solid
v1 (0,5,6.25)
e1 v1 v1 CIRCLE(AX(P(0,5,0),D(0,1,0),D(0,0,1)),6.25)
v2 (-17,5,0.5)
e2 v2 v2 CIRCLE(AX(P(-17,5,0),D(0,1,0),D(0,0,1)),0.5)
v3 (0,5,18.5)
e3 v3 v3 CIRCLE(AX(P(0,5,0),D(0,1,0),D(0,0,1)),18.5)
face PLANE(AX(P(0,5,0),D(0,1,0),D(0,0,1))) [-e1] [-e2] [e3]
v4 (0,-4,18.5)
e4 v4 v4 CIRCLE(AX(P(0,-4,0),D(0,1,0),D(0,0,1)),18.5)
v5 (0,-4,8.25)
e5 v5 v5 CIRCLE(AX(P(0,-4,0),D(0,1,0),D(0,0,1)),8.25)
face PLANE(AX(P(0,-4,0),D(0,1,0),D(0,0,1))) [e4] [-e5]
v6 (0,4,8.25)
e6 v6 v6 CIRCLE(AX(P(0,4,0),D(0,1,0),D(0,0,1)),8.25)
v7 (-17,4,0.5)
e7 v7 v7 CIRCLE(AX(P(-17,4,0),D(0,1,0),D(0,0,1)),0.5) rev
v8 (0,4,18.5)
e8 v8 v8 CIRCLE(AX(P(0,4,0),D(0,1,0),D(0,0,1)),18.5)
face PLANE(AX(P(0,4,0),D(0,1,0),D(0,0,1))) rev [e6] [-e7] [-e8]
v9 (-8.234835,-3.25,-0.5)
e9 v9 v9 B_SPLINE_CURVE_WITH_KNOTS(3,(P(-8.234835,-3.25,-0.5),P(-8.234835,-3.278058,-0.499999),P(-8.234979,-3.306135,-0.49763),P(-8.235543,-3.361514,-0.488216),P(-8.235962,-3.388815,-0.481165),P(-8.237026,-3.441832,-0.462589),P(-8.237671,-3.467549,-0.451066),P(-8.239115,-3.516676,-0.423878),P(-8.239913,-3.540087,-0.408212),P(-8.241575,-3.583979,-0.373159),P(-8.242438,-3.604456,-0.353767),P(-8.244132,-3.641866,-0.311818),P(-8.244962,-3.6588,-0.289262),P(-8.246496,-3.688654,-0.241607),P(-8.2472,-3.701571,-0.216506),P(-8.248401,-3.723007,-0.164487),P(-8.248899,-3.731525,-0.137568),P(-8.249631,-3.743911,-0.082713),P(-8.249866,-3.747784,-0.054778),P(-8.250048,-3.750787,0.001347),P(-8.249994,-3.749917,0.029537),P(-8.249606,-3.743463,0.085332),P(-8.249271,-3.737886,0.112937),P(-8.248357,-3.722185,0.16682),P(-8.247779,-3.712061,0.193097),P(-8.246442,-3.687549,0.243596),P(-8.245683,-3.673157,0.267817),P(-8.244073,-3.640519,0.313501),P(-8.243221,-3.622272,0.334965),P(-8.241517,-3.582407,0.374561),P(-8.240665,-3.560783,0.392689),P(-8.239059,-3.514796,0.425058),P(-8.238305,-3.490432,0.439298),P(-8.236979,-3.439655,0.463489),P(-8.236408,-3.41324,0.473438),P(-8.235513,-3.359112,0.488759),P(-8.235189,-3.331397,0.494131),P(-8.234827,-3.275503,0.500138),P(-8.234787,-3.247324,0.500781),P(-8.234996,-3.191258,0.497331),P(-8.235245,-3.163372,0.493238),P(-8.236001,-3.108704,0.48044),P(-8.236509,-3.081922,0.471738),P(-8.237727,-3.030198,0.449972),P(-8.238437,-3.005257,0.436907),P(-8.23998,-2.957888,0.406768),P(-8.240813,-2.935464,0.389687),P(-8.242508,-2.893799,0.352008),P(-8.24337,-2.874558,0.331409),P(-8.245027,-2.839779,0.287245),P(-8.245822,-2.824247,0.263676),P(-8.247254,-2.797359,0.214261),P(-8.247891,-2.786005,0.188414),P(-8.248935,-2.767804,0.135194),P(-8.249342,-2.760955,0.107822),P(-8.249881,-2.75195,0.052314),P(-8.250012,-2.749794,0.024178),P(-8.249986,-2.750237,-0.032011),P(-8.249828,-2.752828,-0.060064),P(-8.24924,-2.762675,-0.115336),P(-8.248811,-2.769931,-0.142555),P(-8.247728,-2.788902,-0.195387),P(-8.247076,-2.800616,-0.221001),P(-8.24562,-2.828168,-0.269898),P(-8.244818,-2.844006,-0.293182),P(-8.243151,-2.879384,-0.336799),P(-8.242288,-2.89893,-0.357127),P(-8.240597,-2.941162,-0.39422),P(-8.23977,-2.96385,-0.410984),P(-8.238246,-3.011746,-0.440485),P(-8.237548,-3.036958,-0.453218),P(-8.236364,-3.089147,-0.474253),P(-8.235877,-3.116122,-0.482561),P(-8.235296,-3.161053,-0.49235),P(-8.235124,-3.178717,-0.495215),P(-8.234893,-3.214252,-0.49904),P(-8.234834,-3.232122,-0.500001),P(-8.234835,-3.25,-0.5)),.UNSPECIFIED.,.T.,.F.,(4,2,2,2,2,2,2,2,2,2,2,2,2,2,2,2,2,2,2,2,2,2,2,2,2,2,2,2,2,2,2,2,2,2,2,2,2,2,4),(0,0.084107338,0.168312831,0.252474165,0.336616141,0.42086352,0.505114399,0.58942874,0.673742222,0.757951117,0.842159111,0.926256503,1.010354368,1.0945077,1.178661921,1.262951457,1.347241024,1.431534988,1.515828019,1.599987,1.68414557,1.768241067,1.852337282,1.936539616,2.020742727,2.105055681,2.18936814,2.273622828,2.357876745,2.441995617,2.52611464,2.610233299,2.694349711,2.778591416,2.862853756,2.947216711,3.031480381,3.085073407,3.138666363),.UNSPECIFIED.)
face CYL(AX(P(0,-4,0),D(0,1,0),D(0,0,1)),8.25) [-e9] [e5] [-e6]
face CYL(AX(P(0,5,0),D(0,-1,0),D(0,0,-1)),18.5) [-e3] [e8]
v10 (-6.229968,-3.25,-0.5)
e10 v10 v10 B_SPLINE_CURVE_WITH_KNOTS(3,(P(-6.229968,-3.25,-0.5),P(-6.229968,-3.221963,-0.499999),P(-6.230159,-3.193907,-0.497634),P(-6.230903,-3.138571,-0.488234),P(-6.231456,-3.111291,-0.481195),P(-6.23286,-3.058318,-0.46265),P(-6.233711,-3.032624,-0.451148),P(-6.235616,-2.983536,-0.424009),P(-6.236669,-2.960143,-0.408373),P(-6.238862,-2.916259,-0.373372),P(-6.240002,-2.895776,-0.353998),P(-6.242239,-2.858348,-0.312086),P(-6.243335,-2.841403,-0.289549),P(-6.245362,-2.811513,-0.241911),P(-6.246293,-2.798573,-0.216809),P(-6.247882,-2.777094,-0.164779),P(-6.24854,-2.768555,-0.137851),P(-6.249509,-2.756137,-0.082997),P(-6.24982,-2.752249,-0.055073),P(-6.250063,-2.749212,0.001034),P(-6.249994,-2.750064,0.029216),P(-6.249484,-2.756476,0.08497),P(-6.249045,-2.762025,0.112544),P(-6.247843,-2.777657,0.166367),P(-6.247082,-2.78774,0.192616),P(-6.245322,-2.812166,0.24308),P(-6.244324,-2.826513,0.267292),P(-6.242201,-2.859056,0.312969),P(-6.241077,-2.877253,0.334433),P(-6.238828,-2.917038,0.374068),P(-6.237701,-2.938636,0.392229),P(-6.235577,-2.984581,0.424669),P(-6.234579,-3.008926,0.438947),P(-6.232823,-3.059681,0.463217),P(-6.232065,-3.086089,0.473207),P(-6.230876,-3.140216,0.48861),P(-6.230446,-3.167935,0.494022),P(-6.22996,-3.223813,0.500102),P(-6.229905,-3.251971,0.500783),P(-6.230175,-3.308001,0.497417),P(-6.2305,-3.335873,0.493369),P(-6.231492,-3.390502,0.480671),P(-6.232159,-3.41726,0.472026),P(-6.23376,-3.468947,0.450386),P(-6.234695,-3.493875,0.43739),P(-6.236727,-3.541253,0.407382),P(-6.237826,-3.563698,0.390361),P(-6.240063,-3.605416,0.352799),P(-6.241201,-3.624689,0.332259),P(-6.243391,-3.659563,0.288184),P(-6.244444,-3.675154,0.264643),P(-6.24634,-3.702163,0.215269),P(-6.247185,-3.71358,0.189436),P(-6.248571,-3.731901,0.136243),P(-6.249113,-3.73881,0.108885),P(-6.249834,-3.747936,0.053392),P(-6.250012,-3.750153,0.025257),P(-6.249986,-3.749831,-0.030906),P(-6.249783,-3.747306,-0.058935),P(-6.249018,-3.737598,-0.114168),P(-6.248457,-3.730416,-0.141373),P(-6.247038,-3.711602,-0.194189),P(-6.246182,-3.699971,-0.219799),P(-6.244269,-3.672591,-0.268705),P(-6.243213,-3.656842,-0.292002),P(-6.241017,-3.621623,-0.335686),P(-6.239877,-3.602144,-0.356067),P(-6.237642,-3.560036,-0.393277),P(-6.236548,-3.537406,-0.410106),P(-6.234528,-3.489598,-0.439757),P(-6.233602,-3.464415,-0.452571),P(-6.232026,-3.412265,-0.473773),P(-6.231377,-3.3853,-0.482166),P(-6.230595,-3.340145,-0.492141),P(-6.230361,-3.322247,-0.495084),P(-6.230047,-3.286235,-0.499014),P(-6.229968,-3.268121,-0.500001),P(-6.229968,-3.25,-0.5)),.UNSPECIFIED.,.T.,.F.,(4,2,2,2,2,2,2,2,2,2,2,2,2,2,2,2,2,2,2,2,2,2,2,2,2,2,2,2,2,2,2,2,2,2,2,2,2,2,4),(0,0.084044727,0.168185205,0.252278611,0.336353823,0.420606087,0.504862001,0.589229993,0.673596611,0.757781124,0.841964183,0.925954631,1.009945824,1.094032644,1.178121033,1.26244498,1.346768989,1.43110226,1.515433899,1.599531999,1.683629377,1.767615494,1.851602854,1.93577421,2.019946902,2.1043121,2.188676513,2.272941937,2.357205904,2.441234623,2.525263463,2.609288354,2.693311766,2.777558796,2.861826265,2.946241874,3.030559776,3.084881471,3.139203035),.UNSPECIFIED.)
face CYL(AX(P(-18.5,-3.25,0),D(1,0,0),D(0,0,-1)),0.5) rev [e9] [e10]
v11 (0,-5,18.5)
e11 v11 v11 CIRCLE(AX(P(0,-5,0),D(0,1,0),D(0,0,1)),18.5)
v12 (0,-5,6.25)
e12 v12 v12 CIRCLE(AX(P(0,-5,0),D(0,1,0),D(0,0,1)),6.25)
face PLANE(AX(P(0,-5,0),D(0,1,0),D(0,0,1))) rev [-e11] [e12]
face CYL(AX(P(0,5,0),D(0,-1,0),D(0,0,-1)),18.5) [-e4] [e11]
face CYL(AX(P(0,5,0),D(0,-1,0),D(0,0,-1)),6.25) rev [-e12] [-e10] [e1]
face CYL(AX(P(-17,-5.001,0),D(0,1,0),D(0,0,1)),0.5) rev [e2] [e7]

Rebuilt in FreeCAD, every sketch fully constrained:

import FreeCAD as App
import Part
import Sketcher

V = App.Vector
Q = App.Units.Quantity

doc = App.newDocument("Part")
body = doc.addObject("PartDesign::Body", "Body")

# Sketch on XZ plane
sketch1 = body.newObject("Sketcher::SketchObject", "Sketch")
sketch1.AttachmentSupport = (doc.getObject("XZ_Plane"), [""])
sketch1.MapMode = "FlatFace"
sketch1.addGeometry(Part.Circle(V(0, 0, 0), V(0, 0, 1), 7), False)
sketch1.addGeometry(Part.Circle(V(0, 0, 0), V(0, 0, 1), 6), False)
sketch1.addConstraint(Sketcher.Constraint("Coincident", 0, 3, -1, 1))
sketch1.addConstraint(Sketcher.Constraint("Coincident", 1, 3, -1, 1))
sketch1.addConstraint(Sketcher.Constraint("Diameter", 0, Q("13.5 mm")))
sketch1.addConstraint(Sketcher.Constraint("Diameter", 1, Q("12.5 mm")))
pad1 = body.newObject("PartDesign::Pad", "Pad")
pad1.Profile = sketch1
pad1.Length = 10
pad1.Midplane = True

# Sketch on XZ plane
sketch2 = body.newObject("Sketcher::SketchObject", "Sketch001")
sketch2.AttachmentSupport = (doc.getObject("XZ_Plane"), [""])
sketch2.MapMode = "FlatFace"
sketch2.addGeometry(Part.Circle(V(0, 0, 0), V(0, 0, 1), 18), False)
sketch2.addGeometry(Part.Circle(V(0, 0, 0), V(0, 0, 1), 7), False)
sketch2.addConstraint(Sketcher.Constraint("Coincident", 0, 3, -1, 1))
sketch2.addConstraint(Sketcher.Constraint("Coincident", 1, 3, -1, 1))
sketch2.addConstraint(Sketcher.Constraint("Diameter", 0, Q("37 mm")))
sketch2.addConstraint(Sketcher.Constraint("Diameter", 1, Q("13.5 mm")))
pad2 = body.newObject("PartDesign::Pad", "Pad001")
pad2.Profile = sketch2
pad2.Length = 10
pad2.Midplane = True

# Sketch on XZ plane
sketch3 = body.newObject("Sketcher::SketchObject", "Sketch002")
sketch3.AttachmentSupport = (doc.getObject("XZ_Plane"), [""])
sketch3.MapMode = "FlatFace"
sketch3.addGeometry(Part.Circle(V(0, 0, 0), V(0, 0, 1), 18), False)
sketch3.addGeometry(Part.Circle(V(0, 0, 0), V(0, 0, 1), 8), False)
sketch3.addConstraint(Sketcher.Constraint("Coincident", 0, 3, -1, 1))
sketch3.addConstraint(Sketcher.Constraint("Coincident", 1, 3, -1, 1))
sketch3.addConstraint(Sketcher.Constraint("Diameter", 0, Q("37 mm")))
sketch3.addConstraint(Sketcher.Constraint("Diameter", 1, Q("16.5 mm")))
pocket1 = body.newObject("PartDesign::Pocket", "Pocket")
pocket1.Profile = sketch3
pocket1.Length = 8
pocket1.Midplane = True

# Sketch on YZ plane
sketch4 = body.newObject("Sketcher::SketchObject", "Sketch003")
sketch4.AttachmentSupport = (doc.getObject("YZ_Plane"), [""])
sketch4.MapMode = "FlatFace"
sketch4.addGeometry(Part.Circle(V(-3.2, 0, 0), V(0, 0, 1), 0.5), False)
sketch4.addConstraint(Sketcher.Constraint("PointOnObject", 0, 3, -1))
sketch4.addConstraint(Sketcher.Constraint("Diameter", 0, Q("1 mm")))
sketch4.addConstraint(Sketcher.Constraint("DistanceX", 0, 3, -1, 1, Q("3.25 mm")))
pocket2 = body.newObject("PartDesign::Pocket", "Pocket001")
pocket2.Profile = sketch4
pocket2.Type = "ThroughAll"

# Sketch on XZ plane
sketch5 = body.newObject("Sketcher::SketchObject", "Sketch004")
sketch5.AttachmentSupport = (doc.getObject("XZ_Plane"), [""])
sketch5.MapMode = "FlatFace"
sketch5.AttachmentOffset = App.Placement(V(0, 0, -5), App.Rotation())
sketch5.addGeometry(Part.Circle(V(-17, 0, 0), V(0, 0, 1), 0.5), False)
sketch5.addConstraint(Sketcher.Constraint("PointOnObject", 0, 3, -1))
sketch5.addConstraint(Sketcher.Constraint("Diameter", 0, Q("1 mm")))
sketch5.addConstraint(Sketcher.Constraint("DistanceX", 0, 3, -1, 1, Q("17 mm")))
pocket3 = body.newObject("PartDesign::Pocket", "Pocket002")
pocket3.Profile = sketch5
pocket3.Type = "UpToFirst"
pocket3.Reversed = True

doc.recompute()
